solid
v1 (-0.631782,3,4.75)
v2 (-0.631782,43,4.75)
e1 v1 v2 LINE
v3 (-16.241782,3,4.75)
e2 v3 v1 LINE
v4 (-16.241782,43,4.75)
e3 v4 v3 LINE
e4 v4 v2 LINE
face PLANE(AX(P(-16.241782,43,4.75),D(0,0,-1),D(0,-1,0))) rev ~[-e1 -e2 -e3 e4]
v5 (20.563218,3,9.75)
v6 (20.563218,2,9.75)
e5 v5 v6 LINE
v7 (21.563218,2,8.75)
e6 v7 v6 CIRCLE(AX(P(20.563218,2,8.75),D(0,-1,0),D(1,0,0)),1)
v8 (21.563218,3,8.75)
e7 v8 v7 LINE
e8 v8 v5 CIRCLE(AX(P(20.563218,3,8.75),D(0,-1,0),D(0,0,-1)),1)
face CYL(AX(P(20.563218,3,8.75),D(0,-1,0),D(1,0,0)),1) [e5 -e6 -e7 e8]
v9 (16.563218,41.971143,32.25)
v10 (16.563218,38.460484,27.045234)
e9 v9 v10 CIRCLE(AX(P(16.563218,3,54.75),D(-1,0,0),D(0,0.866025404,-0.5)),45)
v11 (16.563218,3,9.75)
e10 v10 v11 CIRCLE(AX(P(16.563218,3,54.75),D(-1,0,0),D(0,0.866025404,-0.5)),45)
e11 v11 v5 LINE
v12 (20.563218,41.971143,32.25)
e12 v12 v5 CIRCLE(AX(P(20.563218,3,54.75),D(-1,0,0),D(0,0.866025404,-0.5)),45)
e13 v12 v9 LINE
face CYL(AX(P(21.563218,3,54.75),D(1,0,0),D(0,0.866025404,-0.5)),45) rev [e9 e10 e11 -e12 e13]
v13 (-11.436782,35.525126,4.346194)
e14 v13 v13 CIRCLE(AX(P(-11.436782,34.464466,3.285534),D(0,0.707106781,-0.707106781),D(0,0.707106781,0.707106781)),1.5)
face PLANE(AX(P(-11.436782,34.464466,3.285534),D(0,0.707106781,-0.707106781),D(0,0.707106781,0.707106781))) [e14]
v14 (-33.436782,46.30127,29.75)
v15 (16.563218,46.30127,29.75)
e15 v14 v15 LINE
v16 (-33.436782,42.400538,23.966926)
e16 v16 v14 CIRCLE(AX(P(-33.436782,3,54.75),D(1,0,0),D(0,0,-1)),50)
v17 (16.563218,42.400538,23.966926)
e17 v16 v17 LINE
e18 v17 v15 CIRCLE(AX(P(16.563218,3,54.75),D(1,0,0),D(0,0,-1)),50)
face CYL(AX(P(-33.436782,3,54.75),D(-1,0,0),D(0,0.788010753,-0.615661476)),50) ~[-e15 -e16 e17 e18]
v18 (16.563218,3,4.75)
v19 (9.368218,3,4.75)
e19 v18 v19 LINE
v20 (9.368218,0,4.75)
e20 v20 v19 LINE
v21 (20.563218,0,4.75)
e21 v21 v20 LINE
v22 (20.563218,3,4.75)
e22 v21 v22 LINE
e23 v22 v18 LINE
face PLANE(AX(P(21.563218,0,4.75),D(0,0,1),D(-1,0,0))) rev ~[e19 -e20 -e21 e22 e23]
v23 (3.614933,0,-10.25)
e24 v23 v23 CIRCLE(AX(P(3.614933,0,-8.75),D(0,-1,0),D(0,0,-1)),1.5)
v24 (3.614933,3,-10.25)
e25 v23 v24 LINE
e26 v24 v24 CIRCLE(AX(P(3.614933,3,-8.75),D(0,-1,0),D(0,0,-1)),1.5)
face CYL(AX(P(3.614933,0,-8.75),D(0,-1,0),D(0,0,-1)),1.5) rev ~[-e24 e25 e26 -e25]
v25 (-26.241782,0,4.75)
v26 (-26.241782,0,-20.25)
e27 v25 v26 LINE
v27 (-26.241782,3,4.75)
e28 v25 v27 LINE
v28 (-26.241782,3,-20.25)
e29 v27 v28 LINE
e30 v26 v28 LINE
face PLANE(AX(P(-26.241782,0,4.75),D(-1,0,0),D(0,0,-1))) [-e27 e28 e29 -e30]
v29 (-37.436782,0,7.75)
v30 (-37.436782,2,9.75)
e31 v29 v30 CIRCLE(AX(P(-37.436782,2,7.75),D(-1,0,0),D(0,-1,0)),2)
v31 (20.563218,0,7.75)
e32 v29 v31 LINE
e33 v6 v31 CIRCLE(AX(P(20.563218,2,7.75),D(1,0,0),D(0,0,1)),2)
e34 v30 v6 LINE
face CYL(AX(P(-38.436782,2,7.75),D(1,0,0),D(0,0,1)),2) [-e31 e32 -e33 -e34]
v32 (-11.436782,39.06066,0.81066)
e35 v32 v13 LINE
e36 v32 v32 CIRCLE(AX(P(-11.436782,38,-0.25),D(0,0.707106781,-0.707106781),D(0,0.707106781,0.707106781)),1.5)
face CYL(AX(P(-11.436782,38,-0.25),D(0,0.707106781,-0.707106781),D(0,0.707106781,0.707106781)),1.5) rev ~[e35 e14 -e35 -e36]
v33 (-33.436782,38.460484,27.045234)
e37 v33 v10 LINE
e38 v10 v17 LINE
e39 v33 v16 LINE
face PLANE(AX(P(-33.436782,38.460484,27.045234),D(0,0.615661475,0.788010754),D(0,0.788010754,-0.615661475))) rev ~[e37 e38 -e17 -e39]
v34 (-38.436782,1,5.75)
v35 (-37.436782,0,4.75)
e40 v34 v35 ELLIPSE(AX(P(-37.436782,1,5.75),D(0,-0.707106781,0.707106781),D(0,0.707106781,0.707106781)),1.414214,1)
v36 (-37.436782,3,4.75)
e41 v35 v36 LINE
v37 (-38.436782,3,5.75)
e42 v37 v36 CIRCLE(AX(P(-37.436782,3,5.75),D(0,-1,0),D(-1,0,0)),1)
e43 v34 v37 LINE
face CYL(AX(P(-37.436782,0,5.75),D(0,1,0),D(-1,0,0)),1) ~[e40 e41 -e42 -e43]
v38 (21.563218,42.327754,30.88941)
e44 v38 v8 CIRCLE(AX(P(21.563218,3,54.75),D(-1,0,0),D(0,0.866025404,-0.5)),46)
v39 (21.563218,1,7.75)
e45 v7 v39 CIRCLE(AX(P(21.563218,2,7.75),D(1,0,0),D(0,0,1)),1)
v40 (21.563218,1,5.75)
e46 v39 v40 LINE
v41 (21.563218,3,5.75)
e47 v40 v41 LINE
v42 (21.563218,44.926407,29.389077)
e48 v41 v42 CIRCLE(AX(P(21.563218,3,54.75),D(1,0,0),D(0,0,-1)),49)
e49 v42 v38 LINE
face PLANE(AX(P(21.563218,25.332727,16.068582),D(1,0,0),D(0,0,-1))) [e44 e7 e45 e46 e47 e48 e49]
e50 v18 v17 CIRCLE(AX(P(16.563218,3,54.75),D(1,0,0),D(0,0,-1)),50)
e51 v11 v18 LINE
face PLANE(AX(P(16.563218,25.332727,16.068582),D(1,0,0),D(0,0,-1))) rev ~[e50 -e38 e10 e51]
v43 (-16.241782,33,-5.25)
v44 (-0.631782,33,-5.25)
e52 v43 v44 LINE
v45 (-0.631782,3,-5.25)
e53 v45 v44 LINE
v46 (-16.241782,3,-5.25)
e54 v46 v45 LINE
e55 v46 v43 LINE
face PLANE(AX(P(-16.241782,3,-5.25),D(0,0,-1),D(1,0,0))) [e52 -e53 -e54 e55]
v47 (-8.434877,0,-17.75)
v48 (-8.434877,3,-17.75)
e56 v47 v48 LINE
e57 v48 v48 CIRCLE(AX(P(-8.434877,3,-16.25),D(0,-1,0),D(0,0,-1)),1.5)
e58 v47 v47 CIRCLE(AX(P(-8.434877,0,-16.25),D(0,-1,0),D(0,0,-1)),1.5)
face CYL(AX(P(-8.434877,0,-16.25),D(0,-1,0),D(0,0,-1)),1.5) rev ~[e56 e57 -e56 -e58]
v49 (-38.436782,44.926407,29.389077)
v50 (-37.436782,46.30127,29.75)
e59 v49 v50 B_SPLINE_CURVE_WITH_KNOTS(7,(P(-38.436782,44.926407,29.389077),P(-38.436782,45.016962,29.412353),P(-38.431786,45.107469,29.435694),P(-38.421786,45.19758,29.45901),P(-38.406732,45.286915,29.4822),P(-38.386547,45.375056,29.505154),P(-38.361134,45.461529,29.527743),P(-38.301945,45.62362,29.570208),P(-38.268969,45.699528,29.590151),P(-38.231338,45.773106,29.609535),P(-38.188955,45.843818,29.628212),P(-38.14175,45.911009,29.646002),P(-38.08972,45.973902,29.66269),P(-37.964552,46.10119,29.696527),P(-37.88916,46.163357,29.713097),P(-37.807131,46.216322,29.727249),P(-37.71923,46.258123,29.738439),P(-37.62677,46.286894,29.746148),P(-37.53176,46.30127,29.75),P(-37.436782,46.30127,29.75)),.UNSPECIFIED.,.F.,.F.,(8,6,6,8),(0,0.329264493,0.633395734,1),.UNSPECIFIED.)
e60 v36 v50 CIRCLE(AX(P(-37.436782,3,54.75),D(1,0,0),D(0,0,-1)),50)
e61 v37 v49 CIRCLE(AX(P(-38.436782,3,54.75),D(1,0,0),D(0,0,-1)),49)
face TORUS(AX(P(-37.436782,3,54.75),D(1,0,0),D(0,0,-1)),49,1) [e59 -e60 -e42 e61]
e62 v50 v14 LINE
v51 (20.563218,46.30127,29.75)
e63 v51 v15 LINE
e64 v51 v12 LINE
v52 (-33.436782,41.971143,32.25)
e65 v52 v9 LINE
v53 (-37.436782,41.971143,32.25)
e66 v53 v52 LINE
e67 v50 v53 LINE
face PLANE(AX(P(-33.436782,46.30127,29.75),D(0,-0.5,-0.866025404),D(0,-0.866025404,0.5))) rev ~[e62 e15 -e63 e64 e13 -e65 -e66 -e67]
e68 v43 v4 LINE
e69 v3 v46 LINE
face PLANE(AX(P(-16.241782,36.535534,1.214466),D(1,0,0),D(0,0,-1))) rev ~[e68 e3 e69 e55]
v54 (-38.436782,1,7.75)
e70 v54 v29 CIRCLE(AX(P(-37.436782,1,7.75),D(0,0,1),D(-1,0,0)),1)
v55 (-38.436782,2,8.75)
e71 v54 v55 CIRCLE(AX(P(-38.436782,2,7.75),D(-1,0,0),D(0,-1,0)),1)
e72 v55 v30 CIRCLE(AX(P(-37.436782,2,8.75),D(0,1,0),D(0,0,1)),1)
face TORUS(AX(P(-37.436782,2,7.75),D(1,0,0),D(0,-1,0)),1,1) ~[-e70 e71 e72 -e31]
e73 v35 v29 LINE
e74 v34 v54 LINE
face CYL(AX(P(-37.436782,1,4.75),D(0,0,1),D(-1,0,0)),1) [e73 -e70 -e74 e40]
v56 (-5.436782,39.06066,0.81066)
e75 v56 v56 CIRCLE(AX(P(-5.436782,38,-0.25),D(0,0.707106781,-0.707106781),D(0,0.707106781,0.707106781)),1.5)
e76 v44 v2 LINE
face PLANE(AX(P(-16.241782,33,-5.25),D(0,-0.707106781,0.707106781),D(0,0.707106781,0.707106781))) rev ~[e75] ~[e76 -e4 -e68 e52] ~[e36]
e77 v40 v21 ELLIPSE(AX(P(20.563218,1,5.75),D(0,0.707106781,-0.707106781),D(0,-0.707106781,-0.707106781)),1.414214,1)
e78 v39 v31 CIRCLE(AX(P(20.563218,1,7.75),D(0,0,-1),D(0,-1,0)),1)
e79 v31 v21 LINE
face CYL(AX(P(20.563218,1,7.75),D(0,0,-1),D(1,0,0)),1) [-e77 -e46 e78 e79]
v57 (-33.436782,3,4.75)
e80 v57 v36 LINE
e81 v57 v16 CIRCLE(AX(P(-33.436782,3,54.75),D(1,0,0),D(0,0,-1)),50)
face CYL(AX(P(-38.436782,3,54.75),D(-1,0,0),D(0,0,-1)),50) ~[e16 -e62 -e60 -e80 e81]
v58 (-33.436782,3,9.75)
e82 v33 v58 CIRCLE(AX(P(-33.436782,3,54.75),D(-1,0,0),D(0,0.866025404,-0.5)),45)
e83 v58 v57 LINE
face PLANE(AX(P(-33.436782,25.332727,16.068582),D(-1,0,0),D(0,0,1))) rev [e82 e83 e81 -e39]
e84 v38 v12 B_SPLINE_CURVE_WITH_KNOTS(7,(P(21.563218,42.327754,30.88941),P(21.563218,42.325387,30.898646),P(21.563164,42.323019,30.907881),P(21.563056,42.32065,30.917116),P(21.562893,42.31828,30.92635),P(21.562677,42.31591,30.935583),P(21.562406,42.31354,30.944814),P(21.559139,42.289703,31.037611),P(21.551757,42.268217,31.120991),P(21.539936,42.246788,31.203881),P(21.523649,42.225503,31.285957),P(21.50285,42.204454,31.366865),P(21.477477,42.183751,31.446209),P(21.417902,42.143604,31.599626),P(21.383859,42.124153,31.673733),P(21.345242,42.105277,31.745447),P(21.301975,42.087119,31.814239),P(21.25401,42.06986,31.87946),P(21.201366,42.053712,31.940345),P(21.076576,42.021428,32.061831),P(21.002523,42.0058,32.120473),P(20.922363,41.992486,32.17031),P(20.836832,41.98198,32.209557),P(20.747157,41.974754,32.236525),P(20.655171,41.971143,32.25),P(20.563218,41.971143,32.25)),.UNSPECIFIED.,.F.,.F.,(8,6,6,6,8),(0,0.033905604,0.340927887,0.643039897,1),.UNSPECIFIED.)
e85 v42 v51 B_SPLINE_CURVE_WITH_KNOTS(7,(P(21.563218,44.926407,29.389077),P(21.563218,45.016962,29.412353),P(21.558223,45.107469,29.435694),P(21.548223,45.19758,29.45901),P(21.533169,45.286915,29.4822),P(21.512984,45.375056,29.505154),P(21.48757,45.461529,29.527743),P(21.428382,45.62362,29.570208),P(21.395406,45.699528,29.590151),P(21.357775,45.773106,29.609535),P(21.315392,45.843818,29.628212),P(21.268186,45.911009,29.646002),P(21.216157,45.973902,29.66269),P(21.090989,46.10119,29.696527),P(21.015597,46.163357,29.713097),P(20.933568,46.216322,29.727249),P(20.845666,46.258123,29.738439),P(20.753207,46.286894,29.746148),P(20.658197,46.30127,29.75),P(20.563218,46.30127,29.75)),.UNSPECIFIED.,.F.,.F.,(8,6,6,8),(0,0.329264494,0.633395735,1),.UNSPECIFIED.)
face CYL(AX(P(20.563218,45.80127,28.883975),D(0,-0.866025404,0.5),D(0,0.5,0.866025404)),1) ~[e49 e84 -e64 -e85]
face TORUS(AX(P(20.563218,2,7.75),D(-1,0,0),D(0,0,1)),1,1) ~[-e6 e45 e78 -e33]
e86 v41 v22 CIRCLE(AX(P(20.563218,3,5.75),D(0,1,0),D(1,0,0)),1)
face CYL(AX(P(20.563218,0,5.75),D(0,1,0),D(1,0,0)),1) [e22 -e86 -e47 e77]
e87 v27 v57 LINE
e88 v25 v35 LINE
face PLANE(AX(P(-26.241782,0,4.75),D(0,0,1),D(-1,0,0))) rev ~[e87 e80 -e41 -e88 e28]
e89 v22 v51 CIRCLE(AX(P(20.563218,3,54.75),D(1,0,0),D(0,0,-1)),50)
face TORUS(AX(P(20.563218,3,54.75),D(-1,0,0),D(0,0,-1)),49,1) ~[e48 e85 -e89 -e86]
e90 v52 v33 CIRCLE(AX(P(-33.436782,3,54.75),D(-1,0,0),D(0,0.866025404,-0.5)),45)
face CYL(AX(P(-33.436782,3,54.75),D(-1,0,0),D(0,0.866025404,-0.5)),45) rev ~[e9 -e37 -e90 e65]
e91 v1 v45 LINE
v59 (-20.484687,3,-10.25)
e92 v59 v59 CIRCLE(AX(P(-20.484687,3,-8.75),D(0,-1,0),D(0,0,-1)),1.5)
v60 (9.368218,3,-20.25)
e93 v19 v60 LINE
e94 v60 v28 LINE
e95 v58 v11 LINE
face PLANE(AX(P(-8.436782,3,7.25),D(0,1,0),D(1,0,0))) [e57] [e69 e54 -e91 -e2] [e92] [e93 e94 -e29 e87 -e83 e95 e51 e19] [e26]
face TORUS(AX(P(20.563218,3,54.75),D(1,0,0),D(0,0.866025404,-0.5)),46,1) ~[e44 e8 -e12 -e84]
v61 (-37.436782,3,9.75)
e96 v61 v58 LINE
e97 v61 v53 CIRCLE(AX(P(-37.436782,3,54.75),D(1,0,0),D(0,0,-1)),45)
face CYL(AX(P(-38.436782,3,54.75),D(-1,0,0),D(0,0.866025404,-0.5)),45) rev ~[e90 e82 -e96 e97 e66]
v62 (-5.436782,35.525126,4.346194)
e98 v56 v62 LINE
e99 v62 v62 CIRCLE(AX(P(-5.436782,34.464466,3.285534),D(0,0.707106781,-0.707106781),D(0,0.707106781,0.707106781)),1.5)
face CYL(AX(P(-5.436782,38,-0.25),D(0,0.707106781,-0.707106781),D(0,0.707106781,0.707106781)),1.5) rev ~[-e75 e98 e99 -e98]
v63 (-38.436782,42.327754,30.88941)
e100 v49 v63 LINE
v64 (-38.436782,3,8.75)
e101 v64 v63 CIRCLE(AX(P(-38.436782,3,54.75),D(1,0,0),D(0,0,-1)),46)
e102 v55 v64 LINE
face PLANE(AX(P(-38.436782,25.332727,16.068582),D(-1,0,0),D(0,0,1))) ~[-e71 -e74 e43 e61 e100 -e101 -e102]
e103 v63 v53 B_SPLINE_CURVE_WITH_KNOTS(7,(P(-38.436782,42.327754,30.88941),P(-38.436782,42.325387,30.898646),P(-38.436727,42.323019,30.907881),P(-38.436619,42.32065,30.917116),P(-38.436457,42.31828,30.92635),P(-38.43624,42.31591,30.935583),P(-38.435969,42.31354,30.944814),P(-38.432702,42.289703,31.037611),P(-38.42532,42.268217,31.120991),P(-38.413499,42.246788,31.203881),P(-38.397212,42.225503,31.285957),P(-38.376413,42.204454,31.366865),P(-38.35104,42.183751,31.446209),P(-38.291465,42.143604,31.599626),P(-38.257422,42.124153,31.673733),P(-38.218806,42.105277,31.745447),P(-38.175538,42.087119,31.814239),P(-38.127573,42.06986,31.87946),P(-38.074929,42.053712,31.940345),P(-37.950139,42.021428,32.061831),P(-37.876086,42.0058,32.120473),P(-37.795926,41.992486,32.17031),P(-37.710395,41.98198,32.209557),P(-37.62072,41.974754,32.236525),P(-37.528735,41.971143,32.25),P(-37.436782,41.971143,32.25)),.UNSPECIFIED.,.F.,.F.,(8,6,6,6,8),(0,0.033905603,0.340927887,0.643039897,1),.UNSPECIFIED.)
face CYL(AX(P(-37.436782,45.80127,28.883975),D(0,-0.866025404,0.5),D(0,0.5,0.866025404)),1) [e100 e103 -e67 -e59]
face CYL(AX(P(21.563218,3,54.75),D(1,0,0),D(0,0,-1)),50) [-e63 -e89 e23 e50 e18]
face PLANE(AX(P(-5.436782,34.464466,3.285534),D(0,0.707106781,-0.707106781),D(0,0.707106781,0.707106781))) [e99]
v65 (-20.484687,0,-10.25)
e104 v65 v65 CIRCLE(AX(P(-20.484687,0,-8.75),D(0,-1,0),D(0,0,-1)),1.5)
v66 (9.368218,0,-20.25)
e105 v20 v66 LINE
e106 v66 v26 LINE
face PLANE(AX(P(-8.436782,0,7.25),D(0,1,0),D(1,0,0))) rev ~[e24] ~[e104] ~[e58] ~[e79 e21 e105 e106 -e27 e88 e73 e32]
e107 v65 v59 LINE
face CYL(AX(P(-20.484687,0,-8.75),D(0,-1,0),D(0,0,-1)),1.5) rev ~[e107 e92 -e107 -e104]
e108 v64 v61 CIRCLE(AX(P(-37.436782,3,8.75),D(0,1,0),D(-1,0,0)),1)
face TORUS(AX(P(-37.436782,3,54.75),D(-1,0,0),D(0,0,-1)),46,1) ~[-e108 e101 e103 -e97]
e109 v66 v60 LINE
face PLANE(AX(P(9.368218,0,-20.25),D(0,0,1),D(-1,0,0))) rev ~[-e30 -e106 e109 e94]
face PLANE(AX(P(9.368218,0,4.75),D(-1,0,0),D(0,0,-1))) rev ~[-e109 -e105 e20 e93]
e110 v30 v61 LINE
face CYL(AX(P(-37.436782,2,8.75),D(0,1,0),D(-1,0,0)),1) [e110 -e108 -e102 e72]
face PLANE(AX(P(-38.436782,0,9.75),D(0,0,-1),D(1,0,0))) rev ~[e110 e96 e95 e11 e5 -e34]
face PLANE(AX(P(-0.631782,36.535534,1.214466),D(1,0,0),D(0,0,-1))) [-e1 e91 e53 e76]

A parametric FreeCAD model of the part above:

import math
import FreeCAD as App
import Part
import Sketcher
Q = App.Units.Quantity


def edges_at(feature, points):
    """Names of the edges that pass closest to the given points."""
    edges = feature.Shape.Edges
    near = lambda p: min(range(len(edges)), key=lambda i: edges[i].distToShape(Part.Vertex(*p))[0])
    return sorted({f"Edge{near(p) + 1}" for p in points})


def add_polygon(sketch, points):
    """Adds a closed chain of lines whose ends are joined by coincident constraints."""
    first, n = sketch.GeometryCount, len(points)
    for a, b in zip(points, points[1:] + points[:1]):
        sketch.addGeometry(Part.LineSegment(App.Vector(*a, 0), App.Vector(*b, 0)), False)
    for i in range(n):
        sketch.addConstraint(Sketcher.Constraint("Coincident", first + i, 2, first + (i + 1) % n, 1))

doc = App.newDocument("Part")
body = doc.addObject("PartDesign::Body", "Body")

sketch1 = body.newObject("Sketcher::SketchObject", "Sketch")
sketch1.AttachmentSupport = (doc.getObject("XZ_Plane"), [""])
sketch1.MapMode = "FlatFace"
add_polygon(sketch1, [(-38, 5), (-38, 10), (22, 10), (22, 5), (9, 5), (9, -20), (-26, -20), (-26, 5)])
sketch1.addConstraint([
    Sketcher.Constraint("Vertical", 0),
    Sketcher.Constraint("Horizontal", 1),
    Sketcher.Constraint("Vertical", 2),
    Sketcher.Constraint("Horizontal", 3),
    Sketcher.Constraint("Vertical", 4),
    Sketcher.Constraint("Horizontal", 5),
    Sketcher.Constraint("Vertical", 6),
    Sketcher.Constraint("Horizontal", 7),
    Sketcher.Constraint("Horizontal", 3, 2, 6, 2),
    Sketcher.Constraint("Equal", 3, 7),
    Sketcher.Constraint("DistanceX", 1, 1, 1, 2, Q("60 mm")),
    Sketcher.Constraint("DistanceY", 0, 1, 0, 2, Q("5 mm")),
    Sketcher.Constraint("DistanceY", 4, 2, 4, 1, Q("25 mm")),
    Sketcher.Constraint("DistanceX", 5, 2, 5, 1, Q("35.61 mm")),
    Sketcher.Constraint("DistanceY", -1, 1, 0, 2, Q("9.75 mm")),
    Sketcher.Constraint("DistanceX", 0, 2, -1, 1, Q("38.436782 mm")),
])
pad1 = body.newObject("PartDesign::Pad", "Pad")
pad1.Profile = sketch1
pad1.Length = 3
pad1.Reversed = True
doc.recompute()

fillet = body.newObject("PartDesign::Fillet", "Fillet")
fillet.Base = (pad1, edges_at(pad1, [(-8.437, 0, 9.75)]))
fillet.Radius = 2

sketch2 = body.newObject("Sketcher::SketchObject", "Sketch001")
sketch2.AttachmentSupport = (doc.getObject("YZ_Plane"), [""])
sketch2.MapMode = "FlatFace"
sketch2.AttachmentOffset = App.Placement(App.Vector(0, 0, 21.563218), App.Rotation())
sketch2.addGeometry([
    Part.LineSegment(App.Vector(46, 30, 0), App.Vector(42, 32, 0)),
    Part.ArcOfCircle(Part.Circle(App.Vector(3, 55, 0), App.Vector(0, 0, 1), 45), math.radians(-90), math.radians(-30)),
    Part.LineSegment(App.Vector(3, 10, 0), App.Vector(3, 5, 0)),
    Part.ArcOfCircle(Part.Circle(App.Vector(3, 55, 0), App.Vector(0, 0, 1), 50), math.radians(-90), math.radians(-30)),
], False)
sketch2.addConstraint([
    Sketcher.Constraint("Coincident", 0, 2, 1, 2),
    Sketcher.Constraint("Coincident", 1, 1, 2, 1),
    Sketcher.Constraint("Coincident", 2, 2, 3, 1),
    Sketcher.Constraint("Coincident", 3, 2, 0, 1),
    Sketcher.Constraint("Vertical", 2),
    Sketcher.Constraint("Coincident", 3, 3, 1, 3),
    Sketcher.Constraint("Vertical", 3, 3, 1, 1),
    Sketcher.Constraint("Radius", 1, Q("45 mm")),
    Sketcher.Constraint("Radius", 3, Q("50 mm")),
    Sketcher.Constraint("Angle", 0, Q("150 deg")),
    Sketcher.Constraint("DistanceX", -1, 1, 1, 3, Q("3 mm")),
    Sketcher.Constraint("DistanceY", 1, 1, 3, 2, Q("20 mm")),
    Sketcher.Constraint("DistanceY", -1, 1, 1, 3, Q("54.75 mm")),
])
pad2 = body.newObject("PartDesign::Pad", "Pad001")
pad2.Profile = sketch2
pad2.Length = 5
pad2.Reversed = True
doc.recompute()

datumplane = body.newObject("PartDesign::Plane", "DatumPlane")
datumplane.AttachmentSupport = (doc.getObject("YZ_Plane"), [""])
datumplane.MapMode = "FlatFace"
datumplane.AttachmentOffset = App.Placement(App.Vector(0, 0, -8.436782), App.Rotation())
mirrored = body.newObject("PartDesign::Mirrored", "Mirrored")
mirrored.Originals = [pad2]
mirrored.MirrorPlane = (datumplane, [""])
body.Tip = mirrored

sketch3 = body.newObject("Sketcher::SketchObject", "Sketch002")
sketch3.AttachmentSupport = (doc.getObject("XZ_Plane"), [""])
sketch3.MapMode = "FlatFace"
sketch3.addGeometry([
    Part.Circle(App.Vector(-20.5, -8.8, 0), App.Vector(0, 0, 1), 1.5),
    Part.Circle(App.Vector(-8.4, -16.2, 0), App.Vector(0, 0, 1), 1.5),
    Part.Circle(App.Vector(3.6, -8.8, 0), App.Vector(0, 0, 1), 1.5),
], False)
sketch3.addConstraint([
    Sketcher.Constraint("Equal", 0, 1),
    Sketcher.Constraint("Equal", 1, 2),
    Sketcher.Constraint("Horizontal", 0, 3, 2, 3),
    Sketcher.Constraint("Diameter", 0, Q("3 mm")),
    Sketcher.Constraint("DistanceY", 1, 3, 0, 3, Q("7.5 mm")),
    Sketcher.Constraint("DistanceY", 0, 3, -1, 1, Q("8.75 mm")),
    Sketcher.Constraint("DistanceX", 0, 3, 1, 3, Q("12.04981 mm")),
    Sketcher.Constraint("DistanceX", 1, 3, 2, 3, Q("12.04981 mm")),
    Sketcher.Constraint("DistanceX", 0, 3, -1, 1, Q("20.484687 mm")),
])
pocket1 = body.newObject("PartDesign::Pocket", "Pocket")
pocket1.Profile = sketch3
pocket1.Length = 5

sketch4 = body.newObject("Sketcher::SketchObject", "Sketch003")
sketch4.AttachmentSupport = (doc.getObject("XZ_Plane"), [""])
sketch4.MapMode = "FlatFace"
sketch4.AttachmentOffset = App.Placement(App.Vector(0, 0, -3), App.Rotation())
add_polygon(sketch4, [(-16, -5), (-16, 5), (-1, 5), (-1, -5)])
sketch4.addConstraint([
    Sketcher.Constraint("Vertical", 0),
    Sketcher.Constraint("Horizontal", 1),
    Sketcher.Constraint("Vertical", 2),
    Sketcher.Constraint("Horizontal", 3),
    Sketcher.Constraint("DistanceY", 0, 1, 0, 2, Q("10 mm")),
    Sketcher.Constraint("DistanceX", 1, 1, 1, 2, Q("15.61 mm")),
    Sketcher.Constraint("DistanceY", -1, 1, 0, 2, Q("4.75 mm")),
    Sketcher.Constraint("DistanceX", 0, 2, -1, 1, Q("16.241782 mm")),
])
pad3 = body.newObject("PartDesign::Pad", "Pad002")
pad3.Profile = sketch4
pad3.Length = 30
pad3.Reversed = True

sketch5 = body.newObject("Sketcher::SketchObject", "Sketch004")
sketch5.AttachmentSupport = (doc.getObject("YZ_Plane"), [""])
sketch5.MapMode = "FlatFace"
sketch5.AttachmentOffset = App.Placement(App.Vector(0, 0, -16.241782), App.Rotation())
add_polygon(sketch5, [(43, 5), (33, -5), (33, 5)])
sketch5.addConstraint([
    Sketcher.Constraint("Vertical", 1),
    Sketcher.Constraint("Horizontal", 2),
    Sketcher.Constraint("Equal", 2, 1),
    Sketcher.Constraint("DistanceX", 2, 1, 2, 2, Q("10 mm")),
    Sketcher.Constraint("DistanceX", -1, 1, 0, 2, Q("33 mm")),
    Sketcher.Constraint("DistanceY", 0, 2, -1, 1, Q("5.25 mm")),
])
pad4 = body.newObject("PartDesign::Pad", "Pad003")
pad4.Profile = sketch5
pad4.Length = 15.61

sketch6 = body.newObject("Sketcher::SketchObject", "Sketch005")
sketch6.Placement = App.Placement(App.Vector(0, 19.125, -19.125), App.Rotation(App.Vector(1, 0, 0), App.Vector(0, -0.707106781, -0.707106781), App.Vector(0, 0.707106781, -0.707106781), "ZXY"))
sketch6.addGeometry([
    Part.Circle(App.Vector(-11.4, -26.7, 0), App.Vector(0, 0, 1), 1.5),
    Part.Circle(App.Vector(-5.4, -26.7, 0), App.Vector(0, 0, 1), 1.5),
], False)
sketch6.addConstraint([
    Sketcher.Constraint("Equal", 0, 1),
    Sketcher.Constraint("Horizontal", 0, 3, 1, 3),
    Sketcher.Constraint("Diameter", 0, Q("3 mm")),
    Sketcher.Constraint("DistanceX", 0, 3, 1, 3, Q("6 mm")),
    Sketcher.Constraint("DistanceX", 0, 3, -1, 1, Q("11.436782 mm")),
    Sketcher.Constraint("DistanceY", 0, 3, -1, 1, Q("26.693281 mm")),
])
pocket2 = body.newObject("PartDesign::Pocket", "Pocket001")
pocket2.Profile = sketch6
pocket2.Length = 5

sketch7 = body.newObject("Sketcher::SketchObject", "Sketch006")
sketch7.AttachmentSupport = (doc.getObject("YZ_Plane"), [""])
sketch7.MapMode = "FlatFace"
sketch7.AttachmentOffset = App.Placement(App.Vector(0, 0, -33.436782), App.Rotation())
sketch7.addGeometry([
    Part.LineSegment(App.Vector(38.5, 27, 0), App.Vector(42.4, 24, 0)),
    Part.ArcOfCircle(Part.Circle(App.Vector(3, 54.7, 0), App.Vector(0, 0, 1), 50), math.radians(-38), math.radians(-30)),
    Part.LineSegment(App.Vector(46.3, 29.8, 0), App.Vector(42, 32.2, 0)),
    Part.ArcOfCircle(Part.Circle(App.Vector(3, 54.7, 0), App.Vector(0, 0, 1), 45), math.radians(-38), math.radians(-30)),
], False)
sketch7.addConstraint([
    Sketcher.Constraint("Coincident", 0, 2, 1, 1),
    Sketcher.Constraint("Coincident", 1, 2, 2, 1),
    Sketcher.Constraint("Coincident", 2, 2, 3, 2),
    Sketcher.Constraint("Coincident", 3, 1, 0, 1),
    Sketcher.Constraint("Coincident", 3, 3, 1, 3),
    Sketcher.Constraint("Radius", 1, Q("50 mm")),
    Sketcher.Constraint("Radius", 3, Q("45 mm")),
    Sketcher.Constraint("Angle", 0, Q("-38 deg")),
    Sketcher.Constraint("Angle", 2, Q("150 deg")),
    Sketcher.Constraint("DistanceX", -1, 1, 1, 3, Q("3 mm")),
    Sketcher.Constraint("DistanceY", 1, 2, 1, 3, Q("25 mm")),
    Sketcher.Constraint("DistanceY", -1, 1, 1, 3, Q("54.75 mm")),
    Sketcher.Constraint("DistanceX", 3, 1, 2, 2, Q("3.510659 mm")),
])
pad5 = body.newObject("PartDesign::Pad", "Pad004")
pad5.Profile = sketch7
pad5.Length = 50
doc.recompute()

fillet2 = body.newObject("PartDesign::Fillet", "Fillet001")
fillet2.Base = (pad5, edges_at(pad5, [
    (-38.437, 0, 6.25),
    (21.563, 0, 6.25),
    (21.563, 2.5, 9.75),
    (-38.437, 2.5, 9.75),
    (-38.437, 1.5, 4.75),
    (21.563, 1.5, 4.75),
    (21.563, 0.586, 9.164),
    (-38.437, 0.586, 9.164),
    (21.563, 25.5, 15.779),
    (21.563, 28, 11.449),
    (21.563, 44.136, 31),
    (-38.437, 25.5, 15.779),
    (-38.437, 28, 11.449),
    (-38.437, 44.136, 31),
]))
fillet2.Radius = 1

doc.recompute()
